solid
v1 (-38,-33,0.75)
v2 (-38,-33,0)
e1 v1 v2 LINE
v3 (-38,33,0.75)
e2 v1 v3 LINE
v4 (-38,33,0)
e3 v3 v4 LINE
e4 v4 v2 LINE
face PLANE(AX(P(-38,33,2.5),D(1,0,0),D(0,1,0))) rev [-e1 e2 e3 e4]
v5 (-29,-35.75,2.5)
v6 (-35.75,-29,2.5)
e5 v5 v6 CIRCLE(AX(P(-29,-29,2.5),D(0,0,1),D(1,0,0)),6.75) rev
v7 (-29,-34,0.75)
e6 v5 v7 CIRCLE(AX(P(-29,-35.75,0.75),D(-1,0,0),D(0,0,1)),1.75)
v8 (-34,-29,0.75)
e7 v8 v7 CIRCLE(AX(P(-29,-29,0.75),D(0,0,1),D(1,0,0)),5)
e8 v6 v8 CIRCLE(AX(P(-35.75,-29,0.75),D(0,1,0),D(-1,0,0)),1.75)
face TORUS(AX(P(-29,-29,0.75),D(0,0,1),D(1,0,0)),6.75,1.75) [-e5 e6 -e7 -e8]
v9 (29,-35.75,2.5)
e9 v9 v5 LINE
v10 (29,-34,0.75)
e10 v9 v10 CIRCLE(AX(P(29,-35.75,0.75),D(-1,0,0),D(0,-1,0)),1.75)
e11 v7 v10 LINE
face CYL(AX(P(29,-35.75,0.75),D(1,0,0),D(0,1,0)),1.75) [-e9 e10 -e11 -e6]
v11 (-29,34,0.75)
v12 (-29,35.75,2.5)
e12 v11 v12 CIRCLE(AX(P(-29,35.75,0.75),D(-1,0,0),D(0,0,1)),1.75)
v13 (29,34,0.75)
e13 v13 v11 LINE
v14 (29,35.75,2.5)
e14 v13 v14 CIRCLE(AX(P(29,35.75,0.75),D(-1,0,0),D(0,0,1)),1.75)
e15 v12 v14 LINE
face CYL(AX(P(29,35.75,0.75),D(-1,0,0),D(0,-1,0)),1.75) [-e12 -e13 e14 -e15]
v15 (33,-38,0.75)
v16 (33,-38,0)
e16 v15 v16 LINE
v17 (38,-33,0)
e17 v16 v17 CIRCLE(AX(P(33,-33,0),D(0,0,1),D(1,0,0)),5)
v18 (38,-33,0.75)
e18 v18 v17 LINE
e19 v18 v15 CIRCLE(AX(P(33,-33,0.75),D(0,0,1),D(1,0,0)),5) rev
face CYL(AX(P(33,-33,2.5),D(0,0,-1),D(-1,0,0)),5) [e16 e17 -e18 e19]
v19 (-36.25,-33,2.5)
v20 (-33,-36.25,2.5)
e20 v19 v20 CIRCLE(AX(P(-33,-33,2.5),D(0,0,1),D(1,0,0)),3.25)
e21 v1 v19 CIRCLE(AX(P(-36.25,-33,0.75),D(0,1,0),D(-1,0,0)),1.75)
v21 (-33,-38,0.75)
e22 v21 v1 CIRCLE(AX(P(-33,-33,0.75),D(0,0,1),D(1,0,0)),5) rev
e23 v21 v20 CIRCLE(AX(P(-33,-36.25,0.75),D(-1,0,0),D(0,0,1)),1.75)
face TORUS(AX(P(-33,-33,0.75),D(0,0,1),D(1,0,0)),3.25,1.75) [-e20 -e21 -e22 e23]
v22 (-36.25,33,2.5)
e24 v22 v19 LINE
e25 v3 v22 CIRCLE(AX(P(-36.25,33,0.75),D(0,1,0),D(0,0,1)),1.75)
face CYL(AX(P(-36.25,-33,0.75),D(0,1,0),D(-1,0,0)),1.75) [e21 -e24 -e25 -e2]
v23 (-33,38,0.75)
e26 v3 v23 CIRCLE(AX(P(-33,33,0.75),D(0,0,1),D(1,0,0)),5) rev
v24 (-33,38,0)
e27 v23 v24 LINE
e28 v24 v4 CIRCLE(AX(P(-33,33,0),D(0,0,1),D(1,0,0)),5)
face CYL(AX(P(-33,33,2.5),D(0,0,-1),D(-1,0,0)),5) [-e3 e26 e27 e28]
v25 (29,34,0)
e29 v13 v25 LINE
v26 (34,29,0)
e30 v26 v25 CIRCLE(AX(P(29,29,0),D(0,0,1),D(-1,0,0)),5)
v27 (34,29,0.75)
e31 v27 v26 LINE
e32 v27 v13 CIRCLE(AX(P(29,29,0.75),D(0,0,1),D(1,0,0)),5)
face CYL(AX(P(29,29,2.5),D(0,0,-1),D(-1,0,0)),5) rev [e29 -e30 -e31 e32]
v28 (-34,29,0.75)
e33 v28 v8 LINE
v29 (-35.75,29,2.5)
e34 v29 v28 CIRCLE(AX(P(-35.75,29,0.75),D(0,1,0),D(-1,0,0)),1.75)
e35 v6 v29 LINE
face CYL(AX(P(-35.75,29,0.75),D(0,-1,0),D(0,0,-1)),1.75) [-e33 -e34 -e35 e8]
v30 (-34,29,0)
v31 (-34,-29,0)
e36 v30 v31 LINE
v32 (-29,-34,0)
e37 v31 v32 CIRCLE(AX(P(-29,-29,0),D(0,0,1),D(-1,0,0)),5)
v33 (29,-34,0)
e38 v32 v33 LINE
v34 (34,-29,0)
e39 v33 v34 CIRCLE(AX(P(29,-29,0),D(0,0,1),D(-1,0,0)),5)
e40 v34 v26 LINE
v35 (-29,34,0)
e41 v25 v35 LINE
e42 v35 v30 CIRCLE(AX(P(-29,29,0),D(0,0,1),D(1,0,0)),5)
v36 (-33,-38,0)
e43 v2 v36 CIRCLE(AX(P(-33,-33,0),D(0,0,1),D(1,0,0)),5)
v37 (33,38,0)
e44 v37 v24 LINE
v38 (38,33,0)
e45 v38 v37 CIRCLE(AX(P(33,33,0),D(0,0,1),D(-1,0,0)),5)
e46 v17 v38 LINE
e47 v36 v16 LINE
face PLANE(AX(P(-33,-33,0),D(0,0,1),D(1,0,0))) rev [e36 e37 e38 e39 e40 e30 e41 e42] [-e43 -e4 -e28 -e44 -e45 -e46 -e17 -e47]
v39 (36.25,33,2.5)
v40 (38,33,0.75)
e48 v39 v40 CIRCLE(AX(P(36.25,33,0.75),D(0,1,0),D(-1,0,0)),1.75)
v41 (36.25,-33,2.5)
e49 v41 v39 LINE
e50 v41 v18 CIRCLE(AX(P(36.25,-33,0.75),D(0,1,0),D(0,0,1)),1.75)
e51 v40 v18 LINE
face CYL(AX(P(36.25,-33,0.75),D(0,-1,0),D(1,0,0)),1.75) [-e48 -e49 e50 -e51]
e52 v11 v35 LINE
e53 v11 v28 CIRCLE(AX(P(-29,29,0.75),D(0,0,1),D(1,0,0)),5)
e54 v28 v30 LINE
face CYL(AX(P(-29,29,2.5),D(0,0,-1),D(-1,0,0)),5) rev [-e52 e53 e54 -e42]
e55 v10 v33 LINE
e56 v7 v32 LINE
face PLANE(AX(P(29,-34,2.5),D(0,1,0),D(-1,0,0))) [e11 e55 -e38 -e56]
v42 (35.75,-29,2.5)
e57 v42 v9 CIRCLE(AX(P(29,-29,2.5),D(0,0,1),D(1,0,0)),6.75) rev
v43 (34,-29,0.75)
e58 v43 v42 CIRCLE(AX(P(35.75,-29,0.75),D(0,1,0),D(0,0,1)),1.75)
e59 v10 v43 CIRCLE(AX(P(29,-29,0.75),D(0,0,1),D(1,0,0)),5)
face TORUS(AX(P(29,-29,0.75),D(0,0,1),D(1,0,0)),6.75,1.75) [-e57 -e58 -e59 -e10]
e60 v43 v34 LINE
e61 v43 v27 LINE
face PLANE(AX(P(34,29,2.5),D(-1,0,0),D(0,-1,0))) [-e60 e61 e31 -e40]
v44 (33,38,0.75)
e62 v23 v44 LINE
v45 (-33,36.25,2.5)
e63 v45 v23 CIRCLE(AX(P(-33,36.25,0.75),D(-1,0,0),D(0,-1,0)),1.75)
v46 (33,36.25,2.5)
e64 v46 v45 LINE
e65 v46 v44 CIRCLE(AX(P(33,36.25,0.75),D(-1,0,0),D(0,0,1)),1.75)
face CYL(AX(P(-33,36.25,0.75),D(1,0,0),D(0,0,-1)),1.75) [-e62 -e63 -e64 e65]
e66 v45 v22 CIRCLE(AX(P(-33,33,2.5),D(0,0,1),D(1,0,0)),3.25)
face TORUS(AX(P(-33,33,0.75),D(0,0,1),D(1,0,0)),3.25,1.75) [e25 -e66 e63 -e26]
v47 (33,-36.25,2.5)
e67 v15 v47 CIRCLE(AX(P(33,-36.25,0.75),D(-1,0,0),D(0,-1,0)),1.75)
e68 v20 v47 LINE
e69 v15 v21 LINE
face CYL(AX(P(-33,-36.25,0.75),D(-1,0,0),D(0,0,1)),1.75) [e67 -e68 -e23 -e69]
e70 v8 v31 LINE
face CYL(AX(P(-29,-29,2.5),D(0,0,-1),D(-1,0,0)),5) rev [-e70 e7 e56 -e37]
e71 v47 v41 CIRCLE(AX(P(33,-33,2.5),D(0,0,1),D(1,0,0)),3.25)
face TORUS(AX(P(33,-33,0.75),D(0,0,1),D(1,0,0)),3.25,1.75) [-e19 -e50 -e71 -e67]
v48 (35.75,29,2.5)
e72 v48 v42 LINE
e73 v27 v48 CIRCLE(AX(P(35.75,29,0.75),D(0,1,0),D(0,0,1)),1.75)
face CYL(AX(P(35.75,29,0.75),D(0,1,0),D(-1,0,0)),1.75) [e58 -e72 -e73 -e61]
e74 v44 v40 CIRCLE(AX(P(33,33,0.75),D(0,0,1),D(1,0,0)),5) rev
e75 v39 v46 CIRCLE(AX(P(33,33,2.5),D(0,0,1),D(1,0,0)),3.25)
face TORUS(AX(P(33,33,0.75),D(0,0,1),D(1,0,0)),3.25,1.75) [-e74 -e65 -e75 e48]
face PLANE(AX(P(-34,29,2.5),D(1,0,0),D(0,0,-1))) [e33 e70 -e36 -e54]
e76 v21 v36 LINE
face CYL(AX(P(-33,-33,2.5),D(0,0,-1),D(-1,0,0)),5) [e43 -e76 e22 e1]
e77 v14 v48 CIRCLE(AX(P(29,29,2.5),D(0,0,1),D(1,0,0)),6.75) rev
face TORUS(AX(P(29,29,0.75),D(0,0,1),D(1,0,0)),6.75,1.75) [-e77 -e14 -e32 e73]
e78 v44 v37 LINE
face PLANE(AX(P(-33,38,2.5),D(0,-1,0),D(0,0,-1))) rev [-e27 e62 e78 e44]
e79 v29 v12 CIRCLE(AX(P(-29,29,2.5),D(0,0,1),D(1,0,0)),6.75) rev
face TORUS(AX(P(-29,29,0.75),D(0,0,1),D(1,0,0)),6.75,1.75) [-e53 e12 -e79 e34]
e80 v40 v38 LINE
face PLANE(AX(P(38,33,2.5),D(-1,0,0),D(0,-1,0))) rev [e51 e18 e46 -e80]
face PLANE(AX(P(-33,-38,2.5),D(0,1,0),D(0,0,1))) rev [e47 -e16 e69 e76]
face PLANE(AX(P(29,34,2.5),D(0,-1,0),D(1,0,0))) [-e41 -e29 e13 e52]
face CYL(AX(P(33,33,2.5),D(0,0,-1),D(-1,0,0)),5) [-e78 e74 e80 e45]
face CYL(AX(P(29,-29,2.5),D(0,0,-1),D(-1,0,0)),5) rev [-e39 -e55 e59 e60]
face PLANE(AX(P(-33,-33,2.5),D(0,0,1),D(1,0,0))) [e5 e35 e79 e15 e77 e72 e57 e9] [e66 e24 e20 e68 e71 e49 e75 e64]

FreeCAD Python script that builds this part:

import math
import FreeCAD as App
import Part
import Sketcher
Q = App.Units.Quantity


def edges_at(feature, points):
    """Names of the edges that pass closest to the given points."""
    edges = feature.Shape.Edges
    near = lambda p: min(range(len(edges)), key=lambda i: edges[i].distToShape(Part.Vertex(*p))[0])
    return sorted({f"Edge{near(p) + 1}" for p in points})

doc = App.newDocument("Part")
body = doc.addObject("PartDesign::Body", "Body")

# Sketch on XY plane
sketch1 = doc.addObject("Sketcher::SketchObject", "Sketch")
body.addObject(sketch1)
sketch1.AttachmentSupport = (doc.XY_Plane, [""])
sketch1.MapMode = "FlatFace"
sketch1.addGeometry([
    Part.LineSegment(App.Vector(33, 38, 0), App.Vector(-33, 38, 0)),  # 0
    Part.ArcOfCircle(Part.Circle(App.Vector(-33, 33, 0), App.Vector(0, 0, 1), 5), math.radians(90), math.radians(180)),  # 1
    Part.LineSegment(App.Vector(-38, 33, 0), App.Vector(-38, -33, 0)),  # 2
    Part.ArcOfCircle(Part.Circle(App.Vector(-33, -33, 0), App.Vector(0, 0, 1), 5), math.radians(180), math.radians(270)),  # 3
    Part.LineSegment(App.Vector(-33, -38, 0), App.Vector(33, -38, 0)),  # 4
    Part.ArcOfCircle(Part.Circle(App.Vector(33, -33, 0), App.Vector(0, 0, 1), 5), math.radians(-90), math.radians(0)),  # 5
    Part.LineSegment(App.Vector(38, -33, 0), App.Vector(38, 33, 0)),  # 6
    Part.ArcOfCircle(Part.Circle(App.Vector(33, 33, 0), App.Vector(0, 0, 1), 5), math.radians(0), math.radians(90)),  # 7
    Part.ArcOfCircle(Part.Circle(App.Vector(29, 29, 0), App.Vector(0, 0, 1), 5), math.radians(0), math.radians(90)),  # 8
    Part.LineSegment(App.Vector(34, 29, 0), App.Vector(34, -29, 0)),  # 9
    Part.ArcOfCircle(Part.Circle(App.Vector(29, -29, 0), App.Vector(0, 0, 1), 5), math.radians(-90), math.radians(0)),  # 10
    Part.LineSegment(App.Vector(29, -34, 0), App.Vector(-29, -34, 0)),  # 11
    Part.ArcOfCircle(Part.Circle(App.Vector(-29, -29, 0), App.Vector(0, 0, 1), 5), math.radians(180), math.radians(270)),  # 12
    Part.LineSegment(App.Vector(-34, -29, 0), App.Vector(-34, 29, 0)),  # 13
    Part.ArcOfCircle(Part.Circle(App.Vector(-29, 29, 0), App.Vector(0, 0, 1), 5), math.radians(90), math.radians(180)),  # 14
    Part.LineSegment(App.Vector(-29, 34, 0), App.Vector(29, 34, 0)),  # 15
], False)
sketch1.addConstraint([
    Sketcher.Constraint("Tangent", 0, 2, 1, 1),
    Sketcher.Constraint("Tangent", 1, 2, 2, 1),
    Sketcher.Constraint("Tangent", 2, 2, 3, 1),
    Sketcher.Constraint("Tangent", 3, 2, 4, 1),
    Sketcher.Constraint("Tangent", 4, 2, 5, 1),
    Sketcher.Constraint("Tangent", 5, 2, 6, 1),
    Sketcher.Constraint("Tangent", 6, 2, 7, 1),
    Sketcher.Constraint("Tangent", 7, 2, 0, 1),
    Sketcher.Constraint("Tangent", 8, 1, 9, 1),
    Sketcher.Constraint("Tangent", 9, 2, 10, 2),
    Sketcher.Constraint("Tangent", 10, 1, 11, 1),
    Sketcher.Constraint("Tangent", 11, 2, 12, 2),
    Sketcher.Constraint("Tangent", 12, 1, 13, 1),
    Sketcher.Constraint("Tangent", 13, 2, 14, 2),
    Sketcher.Constraint("Tangent", 14, 1, 15, 1),
    Sketcher.Constraint("Tangent", 15, 2, 8, 2),
    Sketcher.Constraint("Horizontal", 0),
    Sketcher.Constraint("Vertical", 2),
    Sketcher.Constraint("Horizontal", 4),
    Sketcher.Constraint("Vertical", 6),
    Sketcher.Constraint("Vertical", 9),
    Sketcher.Constraint("Horizontal", 11),
    Sketcher.Constraint("Vertical", 13),
    Sketcher.Constraint("Horizontal", 15),
    Sketcher.Constraint("Equal", 1, 3),
    Sketcher.Constraint("Equal", 3, 5),
    Sketcher.Constraint("Equal", 5, 7),
    Sketcher.Constraint("Equal", 7, 8),
    Sketcher.Constraint("Equal", 8, 10),
    Sketcher.Constraint("Equal", 10, 12),
    Sketcher.Constraint("Equal", 12, 14),
    Sketcher.Constraint("Symmetric", 1, 3, 5, 3, -1, 1),
    Sketcher.Constraint("Symmetric", 8, 3, 12, 3, -1, 1),
    Sketcher.Constraint("Equal", 4, 2),
    Sketcher.Constraint("Equal", 15, 9),
    Sketcher.Constraint("Radius", 1, Q("5 mm")),
    Sketcher.Constraint("DistanceX", 0, 2, 0, 1, Q("66 mm")),
    Sketcher.Constraint("DistanceX", 11, 2, 11, 1, Q("58 mm")),
])
pad1 = doc.addObject("PartDesign::Pad", "Pad")
body.addObject(pad1)
pad1.Profile = sketch1
pad1.Length = 2.5
doc.recompute()

fillet = doc.addObject("PartDesign::Fillet", "Fillet")
body.addObject(fillet)
fillet.Base = (pad1, edges_at(pad1, [
    (36.536, -36.536, 2.5),
    (38, 0, 2.5),
    (36.536, 36.536, 2.5),
    (0, 38, 2.5),
    (-36.536, 36.536, 2.5),
    (-38, 0, 2.5),
    (-32.536, -32.536, 2.5),
    (0, -34, 2.5),
    (32.536, -32.536, 2.5),
    (34, 0, 2.5),
    (32.536, 32.536, 2.5),
    (0, 34, 2.5),
    (-32.536, 32.536, 2.5),
    (-34, 0, 2.5),
    (-36.536, -36.536, 2.5),
    (0, -38, 2.5),
]))
fillet.Radius = 1.75

doc.recompute()
